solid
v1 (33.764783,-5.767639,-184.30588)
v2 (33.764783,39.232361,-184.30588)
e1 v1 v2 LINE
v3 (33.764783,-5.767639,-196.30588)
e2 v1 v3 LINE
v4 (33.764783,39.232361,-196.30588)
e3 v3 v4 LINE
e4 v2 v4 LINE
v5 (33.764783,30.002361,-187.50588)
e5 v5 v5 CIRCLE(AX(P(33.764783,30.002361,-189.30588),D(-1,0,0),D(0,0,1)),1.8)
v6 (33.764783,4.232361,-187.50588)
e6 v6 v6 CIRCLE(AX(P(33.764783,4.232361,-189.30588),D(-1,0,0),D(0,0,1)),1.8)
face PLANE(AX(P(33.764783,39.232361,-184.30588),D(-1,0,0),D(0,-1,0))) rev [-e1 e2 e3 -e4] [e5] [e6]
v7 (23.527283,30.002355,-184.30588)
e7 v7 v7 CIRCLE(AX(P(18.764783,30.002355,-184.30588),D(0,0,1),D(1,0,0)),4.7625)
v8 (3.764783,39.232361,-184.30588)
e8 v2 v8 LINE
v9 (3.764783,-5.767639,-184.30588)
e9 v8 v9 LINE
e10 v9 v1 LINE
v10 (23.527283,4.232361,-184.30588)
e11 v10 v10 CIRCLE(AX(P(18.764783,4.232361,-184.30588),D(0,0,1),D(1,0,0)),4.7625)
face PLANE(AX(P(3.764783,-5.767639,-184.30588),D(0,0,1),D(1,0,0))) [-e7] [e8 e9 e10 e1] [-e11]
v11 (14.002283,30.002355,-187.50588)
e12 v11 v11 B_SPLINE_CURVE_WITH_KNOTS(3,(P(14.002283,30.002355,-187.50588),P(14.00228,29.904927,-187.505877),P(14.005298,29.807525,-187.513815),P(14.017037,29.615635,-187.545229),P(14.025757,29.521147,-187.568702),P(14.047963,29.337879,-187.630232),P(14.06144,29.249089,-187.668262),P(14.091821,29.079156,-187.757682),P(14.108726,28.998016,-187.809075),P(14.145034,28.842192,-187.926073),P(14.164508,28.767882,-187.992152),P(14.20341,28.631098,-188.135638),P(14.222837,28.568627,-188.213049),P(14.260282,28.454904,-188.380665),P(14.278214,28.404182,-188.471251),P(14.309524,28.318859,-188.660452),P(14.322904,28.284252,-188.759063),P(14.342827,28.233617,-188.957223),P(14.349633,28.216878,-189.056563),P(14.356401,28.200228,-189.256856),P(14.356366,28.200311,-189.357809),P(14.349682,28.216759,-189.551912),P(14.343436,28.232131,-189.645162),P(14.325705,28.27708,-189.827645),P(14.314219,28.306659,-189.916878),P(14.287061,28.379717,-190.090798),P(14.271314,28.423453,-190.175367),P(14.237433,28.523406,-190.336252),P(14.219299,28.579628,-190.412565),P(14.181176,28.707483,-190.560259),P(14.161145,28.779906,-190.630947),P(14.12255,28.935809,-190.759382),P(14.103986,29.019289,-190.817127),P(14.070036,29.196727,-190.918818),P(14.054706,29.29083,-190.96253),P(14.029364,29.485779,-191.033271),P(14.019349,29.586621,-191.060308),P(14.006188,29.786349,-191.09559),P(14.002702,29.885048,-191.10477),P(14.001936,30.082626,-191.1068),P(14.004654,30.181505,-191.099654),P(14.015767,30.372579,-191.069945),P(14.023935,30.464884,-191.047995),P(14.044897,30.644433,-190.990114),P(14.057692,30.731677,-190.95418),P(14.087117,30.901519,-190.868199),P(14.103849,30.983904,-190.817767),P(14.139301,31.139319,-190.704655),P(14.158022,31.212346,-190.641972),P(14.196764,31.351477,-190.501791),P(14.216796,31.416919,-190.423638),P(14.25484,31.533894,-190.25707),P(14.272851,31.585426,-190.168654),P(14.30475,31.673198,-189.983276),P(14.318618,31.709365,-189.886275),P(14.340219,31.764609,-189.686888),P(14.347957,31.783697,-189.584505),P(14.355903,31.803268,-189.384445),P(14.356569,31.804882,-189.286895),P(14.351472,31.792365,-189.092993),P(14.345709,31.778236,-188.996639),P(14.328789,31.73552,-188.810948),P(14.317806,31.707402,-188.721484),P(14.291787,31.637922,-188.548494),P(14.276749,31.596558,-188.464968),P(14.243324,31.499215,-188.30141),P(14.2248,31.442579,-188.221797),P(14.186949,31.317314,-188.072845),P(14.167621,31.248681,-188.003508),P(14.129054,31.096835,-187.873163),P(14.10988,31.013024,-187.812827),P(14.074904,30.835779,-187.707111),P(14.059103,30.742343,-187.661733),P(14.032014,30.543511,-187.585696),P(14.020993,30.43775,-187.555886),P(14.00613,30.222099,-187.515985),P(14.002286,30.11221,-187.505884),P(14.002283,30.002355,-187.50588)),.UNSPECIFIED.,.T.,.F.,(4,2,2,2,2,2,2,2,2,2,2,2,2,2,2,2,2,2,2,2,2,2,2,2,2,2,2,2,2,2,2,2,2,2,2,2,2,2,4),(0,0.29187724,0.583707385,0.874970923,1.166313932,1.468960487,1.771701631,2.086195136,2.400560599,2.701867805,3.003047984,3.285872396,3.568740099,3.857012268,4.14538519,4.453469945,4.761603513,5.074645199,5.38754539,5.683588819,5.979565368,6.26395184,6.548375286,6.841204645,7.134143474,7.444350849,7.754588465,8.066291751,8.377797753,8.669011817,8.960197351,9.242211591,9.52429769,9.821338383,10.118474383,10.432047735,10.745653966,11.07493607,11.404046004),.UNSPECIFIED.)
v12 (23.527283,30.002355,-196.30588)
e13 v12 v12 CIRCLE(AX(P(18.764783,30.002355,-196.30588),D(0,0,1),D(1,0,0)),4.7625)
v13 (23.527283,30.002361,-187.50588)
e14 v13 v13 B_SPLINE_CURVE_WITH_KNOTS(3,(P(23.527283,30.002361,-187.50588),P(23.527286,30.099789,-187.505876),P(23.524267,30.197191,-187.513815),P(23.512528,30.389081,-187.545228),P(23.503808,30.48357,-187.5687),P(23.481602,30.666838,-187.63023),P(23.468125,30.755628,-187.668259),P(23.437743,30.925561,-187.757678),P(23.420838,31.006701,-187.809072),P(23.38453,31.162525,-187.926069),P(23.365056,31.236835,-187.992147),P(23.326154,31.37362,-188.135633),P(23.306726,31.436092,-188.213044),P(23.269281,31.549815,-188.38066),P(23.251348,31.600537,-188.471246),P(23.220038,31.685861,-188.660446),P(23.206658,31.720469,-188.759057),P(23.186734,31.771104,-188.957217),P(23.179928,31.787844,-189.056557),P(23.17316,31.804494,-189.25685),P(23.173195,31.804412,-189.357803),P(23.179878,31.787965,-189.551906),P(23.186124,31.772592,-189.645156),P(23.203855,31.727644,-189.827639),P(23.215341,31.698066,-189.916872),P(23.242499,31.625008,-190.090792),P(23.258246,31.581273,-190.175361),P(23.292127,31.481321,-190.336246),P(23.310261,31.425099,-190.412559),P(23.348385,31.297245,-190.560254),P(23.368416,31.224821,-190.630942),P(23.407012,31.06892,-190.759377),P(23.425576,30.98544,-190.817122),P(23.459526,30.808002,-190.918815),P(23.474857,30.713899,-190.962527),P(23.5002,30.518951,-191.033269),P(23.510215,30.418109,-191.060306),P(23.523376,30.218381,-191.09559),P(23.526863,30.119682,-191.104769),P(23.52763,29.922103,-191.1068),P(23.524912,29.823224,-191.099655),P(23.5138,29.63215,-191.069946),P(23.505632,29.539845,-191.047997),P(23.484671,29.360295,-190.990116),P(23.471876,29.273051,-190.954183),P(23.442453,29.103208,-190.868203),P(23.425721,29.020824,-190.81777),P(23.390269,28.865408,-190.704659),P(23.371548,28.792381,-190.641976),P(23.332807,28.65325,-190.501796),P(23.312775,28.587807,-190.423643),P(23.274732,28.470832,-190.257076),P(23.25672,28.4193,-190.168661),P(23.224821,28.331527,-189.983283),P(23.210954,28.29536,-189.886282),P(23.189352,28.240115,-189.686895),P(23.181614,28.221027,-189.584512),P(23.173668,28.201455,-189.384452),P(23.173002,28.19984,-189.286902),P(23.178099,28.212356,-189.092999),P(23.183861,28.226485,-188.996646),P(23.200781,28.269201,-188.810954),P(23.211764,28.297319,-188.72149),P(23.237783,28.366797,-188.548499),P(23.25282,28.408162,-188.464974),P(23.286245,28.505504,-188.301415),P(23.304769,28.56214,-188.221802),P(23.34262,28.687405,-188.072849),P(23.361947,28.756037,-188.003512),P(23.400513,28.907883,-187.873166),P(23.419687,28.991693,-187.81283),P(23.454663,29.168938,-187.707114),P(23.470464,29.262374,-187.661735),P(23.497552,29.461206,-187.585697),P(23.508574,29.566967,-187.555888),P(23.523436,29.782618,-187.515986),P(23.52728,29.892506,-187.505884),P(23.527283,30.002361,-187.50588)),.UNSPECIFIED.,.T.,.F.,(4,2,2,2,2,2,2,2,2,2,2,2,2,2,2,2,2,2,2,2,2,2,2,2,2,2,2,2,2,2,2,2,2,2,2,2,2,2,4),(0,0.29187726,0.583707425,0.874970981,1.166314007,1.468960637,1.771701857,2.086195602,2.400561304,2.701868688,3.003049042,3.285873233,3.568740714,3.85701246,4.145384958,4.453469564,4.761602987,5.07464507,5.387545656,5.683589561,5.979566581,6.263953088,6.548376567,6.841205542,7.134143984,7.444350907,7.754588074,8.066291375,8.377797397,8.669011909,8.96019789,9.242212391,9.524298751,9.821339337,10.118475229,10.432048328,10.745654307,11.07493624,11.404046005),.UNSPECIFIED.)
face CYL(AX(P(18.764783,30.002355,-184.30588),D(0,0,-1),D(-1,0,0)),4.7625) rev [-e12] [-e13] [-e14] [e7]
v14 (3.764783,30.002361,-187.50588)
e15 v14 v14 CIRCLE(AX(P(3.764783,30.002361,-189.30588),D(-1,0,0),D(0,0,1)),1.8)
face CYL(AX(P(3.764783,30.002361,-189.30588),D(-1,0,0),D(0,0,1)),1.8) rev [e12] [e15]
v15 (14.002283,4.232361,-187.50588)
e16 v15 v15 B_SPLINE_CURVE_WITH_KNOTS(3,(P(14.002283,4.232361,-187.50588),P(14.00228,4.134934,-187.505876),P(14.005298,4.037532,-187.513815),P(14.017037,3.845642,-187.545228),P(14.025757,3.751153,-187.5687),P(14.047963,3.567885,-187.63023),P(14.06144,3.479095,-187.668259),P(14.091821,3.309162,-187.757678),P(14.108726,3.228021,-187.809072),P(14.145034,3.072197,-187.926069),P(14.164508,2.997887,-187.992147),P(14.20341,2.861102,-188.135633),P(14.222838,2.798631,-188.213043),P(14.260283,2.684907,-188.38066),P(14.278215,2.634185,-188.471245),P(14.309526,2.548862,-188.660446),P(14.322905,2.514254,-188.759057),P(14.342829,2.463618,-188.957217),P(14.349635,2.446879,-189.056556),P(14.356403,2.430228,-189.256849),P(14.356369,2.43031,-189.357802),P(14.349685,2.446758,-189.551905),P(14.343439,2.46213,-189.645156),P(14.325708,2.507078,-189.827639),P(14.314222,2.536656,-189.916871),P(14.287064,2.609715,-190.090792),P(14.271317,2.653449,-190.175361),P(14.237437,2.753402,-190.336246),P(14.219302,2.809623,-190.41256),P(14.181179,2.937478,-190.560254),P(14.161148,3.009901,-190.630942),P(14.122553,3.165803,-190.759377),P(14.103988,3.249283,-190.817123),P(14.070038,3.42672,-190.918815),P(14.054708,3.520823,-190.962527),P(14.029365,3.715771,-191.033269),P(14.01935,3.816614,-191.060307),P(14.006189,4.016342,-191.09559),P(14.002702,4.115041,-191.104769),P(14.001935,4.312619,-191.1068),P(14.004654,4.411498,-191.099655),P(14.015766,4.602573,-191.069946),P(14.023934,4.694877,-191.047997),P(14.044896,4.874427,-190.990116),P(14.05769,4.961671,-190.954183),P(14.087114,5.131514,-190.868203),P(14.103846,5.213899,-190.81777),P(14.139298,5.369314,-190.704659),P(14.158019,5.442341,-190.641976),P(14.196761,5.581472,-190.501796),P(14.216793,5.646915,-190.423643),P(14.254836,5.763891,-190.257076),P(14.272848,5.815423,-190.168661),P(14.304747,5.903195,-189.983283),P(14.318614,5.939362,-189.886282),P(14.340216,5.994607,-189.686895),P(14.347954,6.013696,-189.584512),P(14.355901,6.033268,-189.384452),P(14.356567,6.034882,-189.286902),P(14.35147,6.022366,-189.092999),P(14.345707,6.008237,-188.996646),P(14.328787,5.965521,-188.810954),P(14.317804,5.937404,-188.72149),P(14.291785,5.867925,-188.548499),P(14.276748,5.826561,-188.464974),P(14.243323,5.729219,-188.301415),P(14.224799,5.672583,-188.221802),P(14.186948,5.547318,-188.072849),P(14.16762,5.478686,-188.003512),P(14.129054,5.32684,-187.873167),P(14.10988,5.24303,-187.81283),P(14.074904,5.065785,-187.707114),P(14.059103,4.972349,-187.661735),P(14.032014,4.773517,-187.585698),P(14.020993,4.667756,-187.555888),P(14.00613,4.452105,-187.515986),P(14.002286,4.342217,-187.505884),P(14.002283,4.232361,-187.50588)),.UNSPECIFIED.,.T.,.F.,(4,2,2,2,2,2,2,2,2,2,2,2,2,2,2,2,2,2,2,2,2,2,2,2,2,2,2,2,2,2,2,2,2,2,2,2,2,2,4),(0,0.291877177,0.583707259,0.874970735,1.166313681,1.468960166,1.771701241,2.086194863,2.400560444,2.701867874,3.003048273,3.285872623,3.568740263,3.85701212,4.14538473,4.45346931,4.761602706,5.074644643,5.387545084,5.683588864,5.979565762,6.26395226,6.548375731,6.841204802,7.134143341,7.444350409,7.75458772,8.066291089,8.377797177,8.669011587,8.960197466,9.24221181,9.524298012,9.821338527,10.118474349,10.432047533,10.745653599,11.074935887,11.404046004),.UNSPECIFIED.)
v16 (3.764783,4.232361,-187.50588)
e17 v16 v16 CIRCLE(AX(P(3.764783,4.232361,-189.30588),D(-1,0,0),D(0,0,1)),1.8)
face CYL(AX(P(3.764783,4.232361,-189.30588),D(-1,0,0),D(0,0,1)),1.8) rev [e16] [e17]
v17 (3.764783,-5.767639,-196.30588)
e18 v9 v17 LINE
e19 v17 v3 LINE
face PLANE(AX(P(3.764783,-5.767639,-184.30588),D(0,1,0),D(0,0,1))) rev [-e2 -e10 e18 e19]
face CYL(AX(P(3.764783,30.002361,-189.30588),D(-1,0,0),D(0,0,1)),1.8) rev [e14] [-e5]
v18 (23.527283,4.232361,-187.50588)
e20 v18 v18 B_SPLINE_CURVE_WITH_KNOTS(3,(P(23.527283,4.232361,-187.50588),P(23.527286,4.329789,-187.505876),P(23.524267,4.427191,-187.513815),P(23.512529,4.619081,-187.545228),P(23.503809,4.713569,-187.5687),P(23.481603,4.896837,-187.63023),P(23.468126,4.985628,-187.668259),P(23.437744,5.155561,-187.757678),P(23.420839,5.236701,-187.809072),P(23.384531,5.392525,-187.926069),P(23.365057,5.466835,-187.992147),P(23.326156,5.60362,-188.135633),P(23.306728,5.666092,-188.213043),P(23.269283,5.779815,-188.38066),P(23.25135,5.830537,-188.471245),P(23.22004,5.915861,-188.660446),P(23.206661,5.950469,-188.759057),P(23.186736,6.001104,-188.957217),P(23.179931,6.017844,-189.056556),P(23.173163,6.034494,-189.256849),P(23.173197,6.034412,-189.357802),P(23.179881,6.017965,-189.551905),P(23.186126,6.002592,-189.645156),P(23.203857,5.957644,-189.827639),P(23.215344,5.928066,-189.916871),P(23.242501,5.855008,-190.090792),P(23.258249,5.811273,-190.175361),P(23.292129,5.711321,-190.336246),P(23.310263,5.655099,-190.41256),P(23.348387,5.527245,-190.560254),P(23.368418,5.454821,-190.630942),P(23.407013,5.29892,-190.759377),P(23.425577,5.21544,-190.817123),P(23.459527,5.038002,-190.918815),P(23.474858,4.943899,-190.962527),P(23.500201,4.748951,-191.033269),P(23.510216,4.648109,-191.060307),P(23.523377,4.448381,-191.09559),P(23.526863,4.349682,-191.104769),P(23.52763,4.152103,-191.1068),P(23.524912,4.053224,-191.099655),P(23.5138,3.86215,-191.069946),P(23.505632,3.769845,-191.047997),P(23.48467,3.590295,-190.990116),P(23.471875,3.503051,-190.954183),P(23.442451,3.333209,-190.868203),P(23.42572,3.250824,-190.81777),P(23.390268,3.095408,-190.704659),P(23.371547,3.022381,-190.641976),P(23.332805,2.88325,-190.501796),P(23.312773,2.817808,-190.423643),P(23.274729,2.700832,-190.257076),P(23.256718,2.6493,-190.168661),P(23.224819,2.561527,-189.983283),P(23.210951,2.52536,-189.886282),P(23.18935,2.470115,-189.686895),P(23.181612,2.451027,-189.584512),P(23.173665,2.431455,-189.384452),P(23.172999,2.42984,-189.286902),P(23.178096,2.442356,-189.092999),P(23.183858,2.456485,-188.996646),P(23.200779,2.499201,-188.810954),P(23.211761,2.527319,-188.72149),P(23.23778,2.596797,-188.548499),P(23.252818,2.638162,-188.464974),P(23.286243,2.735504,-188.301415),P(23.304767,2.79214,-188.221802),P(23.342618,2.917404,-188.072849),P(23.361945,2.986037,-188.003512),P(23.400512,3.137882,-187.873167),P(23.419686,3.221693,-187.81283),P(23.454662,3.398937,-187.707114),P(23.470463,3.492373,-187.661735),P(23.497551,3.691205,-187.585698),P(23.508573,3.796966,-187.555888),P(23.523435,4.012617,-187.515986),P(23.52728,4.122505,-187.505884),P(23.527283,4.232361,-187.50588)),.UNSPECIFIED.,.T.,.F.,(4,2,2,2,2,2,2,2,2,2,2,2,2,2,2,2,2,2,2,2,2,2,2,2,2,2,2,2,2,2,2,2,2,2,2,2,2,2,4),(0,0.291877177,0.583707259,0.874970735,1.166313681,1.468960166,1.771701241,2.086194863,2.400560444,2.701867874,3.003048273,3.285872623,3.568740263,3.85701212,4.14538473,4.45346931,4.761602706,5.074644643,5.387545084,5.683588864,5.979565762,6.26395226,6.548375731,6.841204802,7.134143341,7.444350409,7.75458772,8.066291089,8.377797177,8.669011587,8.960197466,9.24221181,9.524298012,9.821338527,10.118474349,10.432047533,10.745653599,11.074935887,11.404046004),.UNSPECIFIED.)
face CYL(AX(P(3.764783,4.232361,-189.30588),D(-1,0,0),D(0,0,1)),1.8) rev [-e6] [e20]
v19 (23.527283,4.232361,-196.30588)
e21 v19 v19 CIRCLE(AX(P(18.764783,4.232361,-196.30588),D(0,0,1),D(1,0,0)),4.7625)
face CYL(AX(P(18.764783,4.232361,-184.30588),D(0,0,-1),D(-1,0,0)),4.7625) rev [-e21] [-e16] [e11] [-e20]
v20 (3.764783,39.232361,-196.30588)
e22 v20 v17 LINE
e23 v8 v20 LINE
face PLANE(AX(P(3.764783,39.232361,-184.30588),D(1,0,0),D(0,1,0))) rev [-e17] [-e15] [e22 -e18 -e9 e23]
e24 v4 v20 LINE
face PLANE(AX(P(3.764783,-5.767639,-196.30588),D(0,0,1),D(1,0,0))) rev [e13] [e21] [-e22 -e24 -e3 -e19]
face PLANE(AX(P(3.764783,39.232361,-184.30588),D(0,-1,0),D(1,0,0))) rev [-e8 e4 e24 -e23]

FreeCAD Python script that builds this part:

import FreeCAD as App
import Part
import Sketcher


def add_polygon(sketch, points):
    """Adds a closed chain of lines whose ends are joined by coincident constraints."""
    first, n = sketch.GeometryCount, len(points)
    for a, b in zip(points, points[1:] + points[:1]):
        sketch.addGeometry(Part.LineSegment(App.Vector(*a, 0), App.Vector(*b, 0)), False)
    for i in range(n):
        sketch.addConstraint(Sketcher.Constraint("Coincident", first + i, 2, first + (i + 1) % n, 1))

doc = App.newDocument("Part")
body = doc.addObject("PartDesign::Body", "Body")

# Sketch on XY plane
sketch1 = doc.addObject("Sketcher::SketchObject", "Sketch")
body.addObject(sketch1)
sketch1.AttachmentSupport = (doc.XY_Plane, [""])
sketch1.MapMode = "FlatFace"
sketch1.AttachmentOffset = App.Placement(App.Vector(0, 0, -196.30588), App.Rotation())
add_polygon(sketch1, [(3.8, 39.2), (3.8, -5.8), (33.8, -5.8), (33.8, 39.2)])  # lines 0-3
sketch1.addGeometry(Part.Circle(App.Vector(18.8, 4.2, 0), App.Vector(0, 0, 1), 4.8), False)  # 4
sketch1.addGeometry(Part.Circle(App.Vector(18.8, 30, 0), App.Vector(0, 0, 1), 4.8), False)  # 5
sketch1.addConstraint([
    Sketcher.Constraint("Vertical", 0),
    Sketcher.Constraint("Horizontal", 1),
    Sketcher.Constraint("Vertical", 2),
    Sketcher.Constraint("Horizontal", 3),
    Sketcher.Constraint("Equal", 4, 5),
    Sketcher.Constraint("Vertical", 4, 3, 5, 3),
    Sketcher.Constraint("DistanceX", 1, 1, 1, 2, 30.0),
    Sketcher.Constraint("DistanceY", 0, 2, 0, 1, 45.0),
    Sketcher.Constraint("Diameter", 4, 9.525),
    Sketcher.Constraint("DistanceX", 0, 2, 4, 3, 15.0),
    Sketcher.Constraint("DistanceY", 0, 2, 4, 3, 10.0),
    Sketcher.Constraint("DistanceY", -1, 1, 4, 3, 4.232361),
    Sketcher.Constraint("DistanceX", -1, 1, 4, 3, 18.764783),
    Sketcher.Constraint("DistanceY", -1, 1, 5, 3, 30.002355),
])
pad1 = doc.addObject("PartDesign::Pad", "Pad")
body.addObject(pad1)
pad1.Profile = sketch1
pad1.Length = 12

# Sketch on YZ plane
sketch2 = doc.addObject("Sketcher::SketchObject", "Sketch001")
body.addObject(sketch2)
sketch2.AttachmentSupport = (doc.YZ_Plane, [""])
sketch2.MapMode = "FlatFace"
sketch2.AttachmentOffset = App.Placement(App.Vector(0, 0, 3.764783), App.Rotation())
sketch2.addGeometry([
    Part.Circle(App.Vector(30, -189.3, 0), App.Vector(0, 0, 1), 1.8),
    Part.Circle(App.Vector(4.2, -189.3, 0), App.Vector(0, 0, 1), 1.8),
], False)
sketch2.addConstraint([
    Sketcher.Constraint("Equal", 0, 1),
    Sketcher.Constraint("Horizontal", 0, 3, 1, 3),
    Sketcher.Constraint("Diameter", 0, 3.6),
    Sketcher.Constraint("DistanceX", 1, 3, 0, 3, 25.77),
    Sketcher.Constraint("DistanceX", -1, 1, 0, 3, 30.002361),
    Sketcher.Constraint("DistanceY", 0, 3, -1, 1, 189.30588),
])
doc.recompute()
hole = doc.addObject("PartDesign::Hole", "Hole")
body.addObject(hole)
hole.Profile = sketch2
hole.ThreadType = "None"
hole.Diameter = 3.6
hole.DepthType = "Dimension"
hole.Depth = 30
hole.DrillPoint = "Angled"
hole.DrillPointAngle = 118
hole.Reversed = True

doc.recompute()
